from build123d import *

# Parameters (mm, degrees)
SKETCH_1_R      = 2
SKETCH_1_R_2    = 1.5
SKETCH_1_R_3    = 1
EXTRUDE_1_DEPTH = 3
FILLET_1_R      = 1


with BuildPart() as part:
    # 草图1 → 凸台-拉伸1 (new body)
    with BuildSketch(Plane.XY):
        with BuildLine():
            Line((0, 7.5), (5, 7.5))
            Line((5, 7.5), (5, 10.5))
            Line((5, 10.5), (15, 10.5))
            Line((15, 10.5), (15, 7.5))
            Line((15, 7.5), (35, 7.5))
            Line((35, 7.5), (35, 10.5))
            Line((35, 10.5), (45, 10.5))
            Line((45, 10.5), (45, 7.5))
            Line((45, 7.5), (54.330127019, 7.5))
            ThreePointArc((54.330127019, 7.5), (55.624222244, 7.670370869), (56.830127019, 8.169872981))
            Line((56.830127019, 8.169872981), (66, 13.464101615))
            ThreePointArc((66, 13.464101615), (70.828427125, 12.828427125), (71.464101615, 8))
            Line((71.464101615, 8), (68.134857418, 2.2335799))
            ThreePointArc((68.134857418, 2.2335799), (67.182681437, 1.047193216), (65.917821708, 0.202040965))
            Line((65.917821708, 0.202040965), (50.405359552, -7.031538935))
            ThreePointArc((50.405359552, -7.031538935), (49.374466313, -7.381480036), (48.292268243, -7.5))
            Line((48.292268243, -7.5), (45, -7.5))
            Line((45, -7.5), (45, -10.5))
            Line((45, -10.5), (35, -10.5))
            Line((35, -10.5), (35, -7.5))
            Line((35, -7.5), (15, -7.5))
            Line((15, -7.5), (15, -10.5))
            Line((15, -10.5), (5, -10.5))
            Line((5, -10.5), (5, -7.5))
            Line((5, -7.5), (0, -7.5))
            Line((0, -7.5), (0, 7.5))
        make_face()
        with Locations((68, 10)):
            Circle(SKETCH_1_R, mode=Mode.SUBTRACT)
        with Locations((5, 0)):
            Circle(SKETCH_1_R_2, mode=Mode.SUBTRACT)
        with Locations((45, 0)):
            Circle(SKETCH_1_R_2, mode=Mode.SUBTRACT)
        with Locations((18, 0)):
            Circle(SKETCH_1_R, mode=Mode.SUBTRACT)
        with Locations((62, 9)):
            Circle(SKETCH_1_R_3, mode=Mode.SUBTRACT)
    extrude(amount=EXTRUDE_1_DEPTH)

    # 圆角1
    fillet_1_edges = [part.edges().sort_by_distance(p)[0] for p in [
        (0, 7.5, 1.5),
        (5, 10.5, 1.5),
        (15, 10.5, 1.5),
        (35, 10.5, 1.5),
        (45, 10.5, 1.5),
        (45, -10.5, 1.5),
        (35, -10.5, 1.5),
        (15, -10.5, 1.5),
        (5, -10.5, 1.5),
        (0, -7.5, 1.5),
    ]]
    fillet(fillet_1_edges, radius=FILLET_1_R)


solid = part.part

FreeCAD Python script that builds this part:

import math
import FreeCAD as App
import Part
import Sketcher

V = App.Vector
Q = App.Units.Quantity


def edges_at(feature, points):
    """Names of the edges that pass closest to the given points."""
    edges = feature.Shape.Edges
    near = lambda p: min(range(len(edges)), key=lambda i: edges[i].distToShape(Part.Vertex(*p))[0])
    return sorted({f"Edge{near(p) + 1}" for p in points})

doc = App.newDocument("Part")
body = doc.addObject("PartDesign::Body", "Body")

# Sketch on XY plane
sketch1 = body.newObject("Sketcher::SketchObject", "Sketch")
sketch1.AttachmentSupport = (doc.getObject("XY_Plane"), [""])
sketch1.MapMode = "FlatFace"
sketch1.addGeometry([
    Part.LineSegment(V(5, 7.5, 0), V(0, 7.5, 0)),  # 0
    Part.LineSegment(V(0, 7.5, 0), V(0, -7.5, 0)),  # 1
    Part.LineSegment(V(0, -7.5, 0), V(5, -7.5, 0)),  # 2
    Part.LineSegment(V(5, -7.5, 0), V(5, -10.5, 0)),  # 3
    Part.LineSegment(V(5, -10.5, 0), V(15, -10.5, 0)),  # 4
    Part.LineSegment(V(15, -10.5, 0), V(15, -7.5, 0)),  # 5
    Part.LineSegment(V(15, -7.5, 0), V(35, -7.5, 0)),  # 6
    Part.LineSegment(V(35, -7.5, 0), V(35, -10.5, 0)),  # 7
    Part.LineSegment(V(35, -10.5, 0), V(45, -10.5, 0)),  # 8
    Part.LineSegment(V(45, -10.5, 0), V(45, -7.5, 0)),  # 9
    Part.LineSegment(V(45, -7.5, 0), V(48.3, -7.5, 0)),  # 10
    Part.ArcOfCircle(Part.Circle(V(48.3, -2.5, 0), V(0, 0, 1), 5), math.radians(-90), math.radians(-65)),  # 11
    Part.LineSegment(V(50.4, -7, 0), V(65.9, 0.2, 0)),  # 12
    Part.ArcOfCircle(Part.Circle(V(63.8, 4.7, 0), V(0, 0, 1), 5), math.radians(-65), math.radians(-30)),  # 13
    Part.LineSegment(V(68.1, 2.2, 0), V(71.5, 8, 0)),  # 14
    Part.ArcOfCircle(Part.Circle(V(68, 10, 0), V(0, 0, 1), 4), math.radians(-30), math.radians(120)),  # 15
    Part.LineSegment(V(66, 13.5, 0), V(56.8, 8.2, 0)),  # 16
    Part.ArcOfCircle(Part.Circle(V(54.3, 12.5, 0), V(0, 0, 1), 5), math.radians(-90), math.radians(-60)),  # 17
    Part.LineSegment(V(54.3, 7.5, 0), V(45, 7.5, 0)),  # 18
    Part.LineSegment(V(45, 7.5, 0), V(45, 10.5, 0)),  # 19
    Part.LineSegment(V(45, 10.5, 0), V(35, 10.5, 0)),  # 20
    Part.LineSegment(V(35, 10.5, 0), V(35, 7.5, 0)),  # 21
    Part.LineSegment(V(35, 7.5, 0), V(15, 7.5, 0)),  # 22
    Part.LineSegment(V(15, 7.5, 0), V(15, 10.5, 0)),  # 23
    Part.LineSegment(V(15, 10.5, 0), V(5, 10.5, 0)),  # 24
    Part.LineSegment(V(5, 10.5, 0), V(5, 7.5, 0)),  # 25
    Part.Circle(V(45, 0, 0), V(0, 0, 1), 1.5),  # 26
    Part.Circle(V(18, 0, 0), V(0, 0, 1), 2),  # 27
    Part.Circle(V(5, 0, 0), V(0, 0, 1), 1.5),  # 28
    Part.Circle(V(62, 9, 0), V(0, 0, 1), 1),  # 29
    Part.Circle(V(68, 10, 0), V(0, 0, 1), 2),  # 30
], False)
sketch1.addConstraint([
    Sketcher.Constraint("Coincident", 0, 2, 1, 1),
    Sketcher.Constraint("Coincident", 1, 2, 2, 1),
    Sketcher.Constraint("Coincident", 2, 2, 3, 1),
    Sketcher.Constraint("Coincident", 3, 2, 4, 1),
    Sketcher.Constraint("Coincident", 4, 2, 5, 1),
    Sketcher.Constraint("Coincident", 5, 2, 6, 1),
    Sketcher.Constraint("Coincident", 6, 2, 7, 1),
    Sketcher.Constraint("Coincident", 7, 2, 8, 1),
    Sketcher.Constraint("Coincident", 8, 2, 9, 1),
    Sketcher.Constraint("Coincident", 9, 2, 10, 1),
    Sketcher.Constraint("Tangent", 10, 2, 11, 1),
    Sketcher.Constraint("Tangent", 11, 2, 12, 1),
    Sketcher.Constraint("Tangent", 12, 2, 13, 1),
    Sketcher.Constraint("Tangent", 13, 2, 14, 1),
    Sketcher.Constraint("Tangent", 14, 2, 15, 1),
    Sketcher.Constraint("Tangent", 15, 2, 16, 1),
    Sketcher.Constraint("Tangent", 16, 2, 17, 2),
    Sketcher.Constraint("Tangent", 17, 1, 18, 1),
    Sketcher.Constraint("Coincident", 18, 2, 19, 1),
    Sketcher.Constraint("Coincident", 19, 2, 20, 1),
    Sketcher.Constraint("Coincident", 20, 2, 21, 1),
    Sketcher.Constraint("Coincident", 21, 2, 22, 1),
    Sketcher.Constraint("Coincident", 22, 2, 23, 1),
    Sketcher.Constraint("Coincident", 23, 2, 24, 1),
    Sketcher.Constraint("Coincident", 24, 2, 25, 1),
    Sketcher.Constraint("Coincident", 25, 2, 0, 1),
    Sketcher.Constraint("Horizontal", 0),
    Sketcher.Constraint("Vertical", 1),
    Sketcher.Constraint("Horizontal", 2),
    Sketcher.Constraint("Vertical", 3),
    Sketcher.Constraint("Horizontal", 4),
    Sketcher.Constraint("Vertical", 5),
    Sketcher.Constraint("Horizontal", 6),
    Sketcher.Constraint("Vertical", 7),
    Sketcher.Constraint("Horizontal", 8),
    Sketcher.Constraint("Vertical", 9),
    Sketcher.Constraint("Horizontal", 10),
    Sketcher.Constraint("Horizontal", 18),
    Sketcher.Constraint("Vertical", 19),
    Sketcher.Constraint("Horizontal", 20),
    Sketcher.Constraint("Vertical", 21),
    Sketcher.Constraint("Horizontal", 22),
    Sketcher.Constraint("Vertical", 23),
    Sketcher.Constraint("Horizontal", 24),
    Sketcher.Constraint("Vertical", 25),
    Sketcher.Constraint("Coincident", 30, 3, 15, 3),
    Sketcher.Constraint("Equal", 11, 13),
    Sketcher.Constraint("Equal", 13, 17),
    Sketcher.Constraint("Equal", 26, 28),
    Sketcher.Constraint("Equal", 27, 30),
    Sketcher.Constraint("Symmetric", 0, 2, 1, 2, -1, 1),
    Sketcher.Constraint("Symmetric", 9, 2, 18, 2, -1),
    Sketcher.Constraint("Symmetric", 7, 2, 20, 2, -1),
    Sketcher.Constraint("Symmetric", 5, 2, 22, 2, -1),
    Sketcher.Constraint("Symmetric", 3, 2, 24, 2, -1),
    Sketcher.Constraint("PointOnObject", 26, 3, -1),
    Sketcher.Constraint("PointOnObject", 27, 3, -1),
    Sketcher.Constraint("PointOnObject", 28, 3, -1),
    Sketcher.Constraint("Horizontal", 2, 2, 5, 2),
    Sketcher.Constraint("Horizontal", 4, 2, 7, 2),
    Sketcher.Constraint("Horizontal", 6, 2, 9, 2),
    Sketcher.Constraint("Vertical", 28, 3, 2, 2),
    Sketcher.Constraint("Vertical", 26, 3, 8, 2),
    Sketcher.Constraint("Equal", 4, 8),
    Sketcher.Constraint("Diameter", 26, 3.0),
    Sketcher.Constraint("Diameter", 27, 4.0),
    Sketcher.Constraint("Diameter", 29, 2.0),
    Sketcher.Constraint("Radius", 11, 5.0),
    Sketcher.Constraint("Radius", 15, 4.0),
    Sketcher.Constraint("DistanceX", 0, 2, 0, 1, 5.0),
    Sketcher.Constraint("DistanceX", 4, 1, 4, 2, 10.0),
    Sketcher.Constraint("DistanceX", 6, 1, 6, 2, 20.0),
    Sketcher.Constraint("DistanceY", 1, 2, 1, 1, 15.0),
    Sketcher.Constraint("DistanceY", 3, 2, 3, 1, 3.0),
    Sketcher.Constraint("Angle", 12, Q("25 deg")),
    Sketcher.Constraint("Angle", 14, Q("60 deg")),
    Sketcher.Constraint("Angle", 16, Q("-150 deg")),
    Sketcher.Constraint("DistanceX", -1, 1, 15, 3, 68.0),
    Sketcher.Constraint("DistanceY", -1, 1, 15, 3, 10.0),
    Sketcher.Constraint("DistanceX", -1, 1, 27, 3, 18.0),
    Sketcher.Constraint("DistanceX", -1, 1, 29, 3, 62.0),
    Sketcher.Constraint("DistanceY", -1, 1, 29, 3, 9.0),
    Sketcher.Constraint("DistanceX", 10, 1, 10, 2, 3.292268),
])
pad1 = body.newObject("PartDesign::Pad", "Pad")
pad1.Profile = sketch1
pad1.Length = 3
doc.recompute()

fillet = body.newObject("PartDesign::Fillet", "Fillet")
fillet.Base = (pad1, edges_at(pad1, [
    (0, 7.5, 1.5),
    (5, 10.5, 1.5),
    (15, 10.5, 1.5),
    (35, 10.5, 1.5),
    (45, 10.5, 1.5),
    (45, -10.5, 1.5),
    (35, -10.5, 1.5),
    (15, -10.5, 1.5),
    (5, -10.5, 1.5),
    (0, -7.5, 1.5),
]))
fillet.Radius = 1

doc.recompute()
